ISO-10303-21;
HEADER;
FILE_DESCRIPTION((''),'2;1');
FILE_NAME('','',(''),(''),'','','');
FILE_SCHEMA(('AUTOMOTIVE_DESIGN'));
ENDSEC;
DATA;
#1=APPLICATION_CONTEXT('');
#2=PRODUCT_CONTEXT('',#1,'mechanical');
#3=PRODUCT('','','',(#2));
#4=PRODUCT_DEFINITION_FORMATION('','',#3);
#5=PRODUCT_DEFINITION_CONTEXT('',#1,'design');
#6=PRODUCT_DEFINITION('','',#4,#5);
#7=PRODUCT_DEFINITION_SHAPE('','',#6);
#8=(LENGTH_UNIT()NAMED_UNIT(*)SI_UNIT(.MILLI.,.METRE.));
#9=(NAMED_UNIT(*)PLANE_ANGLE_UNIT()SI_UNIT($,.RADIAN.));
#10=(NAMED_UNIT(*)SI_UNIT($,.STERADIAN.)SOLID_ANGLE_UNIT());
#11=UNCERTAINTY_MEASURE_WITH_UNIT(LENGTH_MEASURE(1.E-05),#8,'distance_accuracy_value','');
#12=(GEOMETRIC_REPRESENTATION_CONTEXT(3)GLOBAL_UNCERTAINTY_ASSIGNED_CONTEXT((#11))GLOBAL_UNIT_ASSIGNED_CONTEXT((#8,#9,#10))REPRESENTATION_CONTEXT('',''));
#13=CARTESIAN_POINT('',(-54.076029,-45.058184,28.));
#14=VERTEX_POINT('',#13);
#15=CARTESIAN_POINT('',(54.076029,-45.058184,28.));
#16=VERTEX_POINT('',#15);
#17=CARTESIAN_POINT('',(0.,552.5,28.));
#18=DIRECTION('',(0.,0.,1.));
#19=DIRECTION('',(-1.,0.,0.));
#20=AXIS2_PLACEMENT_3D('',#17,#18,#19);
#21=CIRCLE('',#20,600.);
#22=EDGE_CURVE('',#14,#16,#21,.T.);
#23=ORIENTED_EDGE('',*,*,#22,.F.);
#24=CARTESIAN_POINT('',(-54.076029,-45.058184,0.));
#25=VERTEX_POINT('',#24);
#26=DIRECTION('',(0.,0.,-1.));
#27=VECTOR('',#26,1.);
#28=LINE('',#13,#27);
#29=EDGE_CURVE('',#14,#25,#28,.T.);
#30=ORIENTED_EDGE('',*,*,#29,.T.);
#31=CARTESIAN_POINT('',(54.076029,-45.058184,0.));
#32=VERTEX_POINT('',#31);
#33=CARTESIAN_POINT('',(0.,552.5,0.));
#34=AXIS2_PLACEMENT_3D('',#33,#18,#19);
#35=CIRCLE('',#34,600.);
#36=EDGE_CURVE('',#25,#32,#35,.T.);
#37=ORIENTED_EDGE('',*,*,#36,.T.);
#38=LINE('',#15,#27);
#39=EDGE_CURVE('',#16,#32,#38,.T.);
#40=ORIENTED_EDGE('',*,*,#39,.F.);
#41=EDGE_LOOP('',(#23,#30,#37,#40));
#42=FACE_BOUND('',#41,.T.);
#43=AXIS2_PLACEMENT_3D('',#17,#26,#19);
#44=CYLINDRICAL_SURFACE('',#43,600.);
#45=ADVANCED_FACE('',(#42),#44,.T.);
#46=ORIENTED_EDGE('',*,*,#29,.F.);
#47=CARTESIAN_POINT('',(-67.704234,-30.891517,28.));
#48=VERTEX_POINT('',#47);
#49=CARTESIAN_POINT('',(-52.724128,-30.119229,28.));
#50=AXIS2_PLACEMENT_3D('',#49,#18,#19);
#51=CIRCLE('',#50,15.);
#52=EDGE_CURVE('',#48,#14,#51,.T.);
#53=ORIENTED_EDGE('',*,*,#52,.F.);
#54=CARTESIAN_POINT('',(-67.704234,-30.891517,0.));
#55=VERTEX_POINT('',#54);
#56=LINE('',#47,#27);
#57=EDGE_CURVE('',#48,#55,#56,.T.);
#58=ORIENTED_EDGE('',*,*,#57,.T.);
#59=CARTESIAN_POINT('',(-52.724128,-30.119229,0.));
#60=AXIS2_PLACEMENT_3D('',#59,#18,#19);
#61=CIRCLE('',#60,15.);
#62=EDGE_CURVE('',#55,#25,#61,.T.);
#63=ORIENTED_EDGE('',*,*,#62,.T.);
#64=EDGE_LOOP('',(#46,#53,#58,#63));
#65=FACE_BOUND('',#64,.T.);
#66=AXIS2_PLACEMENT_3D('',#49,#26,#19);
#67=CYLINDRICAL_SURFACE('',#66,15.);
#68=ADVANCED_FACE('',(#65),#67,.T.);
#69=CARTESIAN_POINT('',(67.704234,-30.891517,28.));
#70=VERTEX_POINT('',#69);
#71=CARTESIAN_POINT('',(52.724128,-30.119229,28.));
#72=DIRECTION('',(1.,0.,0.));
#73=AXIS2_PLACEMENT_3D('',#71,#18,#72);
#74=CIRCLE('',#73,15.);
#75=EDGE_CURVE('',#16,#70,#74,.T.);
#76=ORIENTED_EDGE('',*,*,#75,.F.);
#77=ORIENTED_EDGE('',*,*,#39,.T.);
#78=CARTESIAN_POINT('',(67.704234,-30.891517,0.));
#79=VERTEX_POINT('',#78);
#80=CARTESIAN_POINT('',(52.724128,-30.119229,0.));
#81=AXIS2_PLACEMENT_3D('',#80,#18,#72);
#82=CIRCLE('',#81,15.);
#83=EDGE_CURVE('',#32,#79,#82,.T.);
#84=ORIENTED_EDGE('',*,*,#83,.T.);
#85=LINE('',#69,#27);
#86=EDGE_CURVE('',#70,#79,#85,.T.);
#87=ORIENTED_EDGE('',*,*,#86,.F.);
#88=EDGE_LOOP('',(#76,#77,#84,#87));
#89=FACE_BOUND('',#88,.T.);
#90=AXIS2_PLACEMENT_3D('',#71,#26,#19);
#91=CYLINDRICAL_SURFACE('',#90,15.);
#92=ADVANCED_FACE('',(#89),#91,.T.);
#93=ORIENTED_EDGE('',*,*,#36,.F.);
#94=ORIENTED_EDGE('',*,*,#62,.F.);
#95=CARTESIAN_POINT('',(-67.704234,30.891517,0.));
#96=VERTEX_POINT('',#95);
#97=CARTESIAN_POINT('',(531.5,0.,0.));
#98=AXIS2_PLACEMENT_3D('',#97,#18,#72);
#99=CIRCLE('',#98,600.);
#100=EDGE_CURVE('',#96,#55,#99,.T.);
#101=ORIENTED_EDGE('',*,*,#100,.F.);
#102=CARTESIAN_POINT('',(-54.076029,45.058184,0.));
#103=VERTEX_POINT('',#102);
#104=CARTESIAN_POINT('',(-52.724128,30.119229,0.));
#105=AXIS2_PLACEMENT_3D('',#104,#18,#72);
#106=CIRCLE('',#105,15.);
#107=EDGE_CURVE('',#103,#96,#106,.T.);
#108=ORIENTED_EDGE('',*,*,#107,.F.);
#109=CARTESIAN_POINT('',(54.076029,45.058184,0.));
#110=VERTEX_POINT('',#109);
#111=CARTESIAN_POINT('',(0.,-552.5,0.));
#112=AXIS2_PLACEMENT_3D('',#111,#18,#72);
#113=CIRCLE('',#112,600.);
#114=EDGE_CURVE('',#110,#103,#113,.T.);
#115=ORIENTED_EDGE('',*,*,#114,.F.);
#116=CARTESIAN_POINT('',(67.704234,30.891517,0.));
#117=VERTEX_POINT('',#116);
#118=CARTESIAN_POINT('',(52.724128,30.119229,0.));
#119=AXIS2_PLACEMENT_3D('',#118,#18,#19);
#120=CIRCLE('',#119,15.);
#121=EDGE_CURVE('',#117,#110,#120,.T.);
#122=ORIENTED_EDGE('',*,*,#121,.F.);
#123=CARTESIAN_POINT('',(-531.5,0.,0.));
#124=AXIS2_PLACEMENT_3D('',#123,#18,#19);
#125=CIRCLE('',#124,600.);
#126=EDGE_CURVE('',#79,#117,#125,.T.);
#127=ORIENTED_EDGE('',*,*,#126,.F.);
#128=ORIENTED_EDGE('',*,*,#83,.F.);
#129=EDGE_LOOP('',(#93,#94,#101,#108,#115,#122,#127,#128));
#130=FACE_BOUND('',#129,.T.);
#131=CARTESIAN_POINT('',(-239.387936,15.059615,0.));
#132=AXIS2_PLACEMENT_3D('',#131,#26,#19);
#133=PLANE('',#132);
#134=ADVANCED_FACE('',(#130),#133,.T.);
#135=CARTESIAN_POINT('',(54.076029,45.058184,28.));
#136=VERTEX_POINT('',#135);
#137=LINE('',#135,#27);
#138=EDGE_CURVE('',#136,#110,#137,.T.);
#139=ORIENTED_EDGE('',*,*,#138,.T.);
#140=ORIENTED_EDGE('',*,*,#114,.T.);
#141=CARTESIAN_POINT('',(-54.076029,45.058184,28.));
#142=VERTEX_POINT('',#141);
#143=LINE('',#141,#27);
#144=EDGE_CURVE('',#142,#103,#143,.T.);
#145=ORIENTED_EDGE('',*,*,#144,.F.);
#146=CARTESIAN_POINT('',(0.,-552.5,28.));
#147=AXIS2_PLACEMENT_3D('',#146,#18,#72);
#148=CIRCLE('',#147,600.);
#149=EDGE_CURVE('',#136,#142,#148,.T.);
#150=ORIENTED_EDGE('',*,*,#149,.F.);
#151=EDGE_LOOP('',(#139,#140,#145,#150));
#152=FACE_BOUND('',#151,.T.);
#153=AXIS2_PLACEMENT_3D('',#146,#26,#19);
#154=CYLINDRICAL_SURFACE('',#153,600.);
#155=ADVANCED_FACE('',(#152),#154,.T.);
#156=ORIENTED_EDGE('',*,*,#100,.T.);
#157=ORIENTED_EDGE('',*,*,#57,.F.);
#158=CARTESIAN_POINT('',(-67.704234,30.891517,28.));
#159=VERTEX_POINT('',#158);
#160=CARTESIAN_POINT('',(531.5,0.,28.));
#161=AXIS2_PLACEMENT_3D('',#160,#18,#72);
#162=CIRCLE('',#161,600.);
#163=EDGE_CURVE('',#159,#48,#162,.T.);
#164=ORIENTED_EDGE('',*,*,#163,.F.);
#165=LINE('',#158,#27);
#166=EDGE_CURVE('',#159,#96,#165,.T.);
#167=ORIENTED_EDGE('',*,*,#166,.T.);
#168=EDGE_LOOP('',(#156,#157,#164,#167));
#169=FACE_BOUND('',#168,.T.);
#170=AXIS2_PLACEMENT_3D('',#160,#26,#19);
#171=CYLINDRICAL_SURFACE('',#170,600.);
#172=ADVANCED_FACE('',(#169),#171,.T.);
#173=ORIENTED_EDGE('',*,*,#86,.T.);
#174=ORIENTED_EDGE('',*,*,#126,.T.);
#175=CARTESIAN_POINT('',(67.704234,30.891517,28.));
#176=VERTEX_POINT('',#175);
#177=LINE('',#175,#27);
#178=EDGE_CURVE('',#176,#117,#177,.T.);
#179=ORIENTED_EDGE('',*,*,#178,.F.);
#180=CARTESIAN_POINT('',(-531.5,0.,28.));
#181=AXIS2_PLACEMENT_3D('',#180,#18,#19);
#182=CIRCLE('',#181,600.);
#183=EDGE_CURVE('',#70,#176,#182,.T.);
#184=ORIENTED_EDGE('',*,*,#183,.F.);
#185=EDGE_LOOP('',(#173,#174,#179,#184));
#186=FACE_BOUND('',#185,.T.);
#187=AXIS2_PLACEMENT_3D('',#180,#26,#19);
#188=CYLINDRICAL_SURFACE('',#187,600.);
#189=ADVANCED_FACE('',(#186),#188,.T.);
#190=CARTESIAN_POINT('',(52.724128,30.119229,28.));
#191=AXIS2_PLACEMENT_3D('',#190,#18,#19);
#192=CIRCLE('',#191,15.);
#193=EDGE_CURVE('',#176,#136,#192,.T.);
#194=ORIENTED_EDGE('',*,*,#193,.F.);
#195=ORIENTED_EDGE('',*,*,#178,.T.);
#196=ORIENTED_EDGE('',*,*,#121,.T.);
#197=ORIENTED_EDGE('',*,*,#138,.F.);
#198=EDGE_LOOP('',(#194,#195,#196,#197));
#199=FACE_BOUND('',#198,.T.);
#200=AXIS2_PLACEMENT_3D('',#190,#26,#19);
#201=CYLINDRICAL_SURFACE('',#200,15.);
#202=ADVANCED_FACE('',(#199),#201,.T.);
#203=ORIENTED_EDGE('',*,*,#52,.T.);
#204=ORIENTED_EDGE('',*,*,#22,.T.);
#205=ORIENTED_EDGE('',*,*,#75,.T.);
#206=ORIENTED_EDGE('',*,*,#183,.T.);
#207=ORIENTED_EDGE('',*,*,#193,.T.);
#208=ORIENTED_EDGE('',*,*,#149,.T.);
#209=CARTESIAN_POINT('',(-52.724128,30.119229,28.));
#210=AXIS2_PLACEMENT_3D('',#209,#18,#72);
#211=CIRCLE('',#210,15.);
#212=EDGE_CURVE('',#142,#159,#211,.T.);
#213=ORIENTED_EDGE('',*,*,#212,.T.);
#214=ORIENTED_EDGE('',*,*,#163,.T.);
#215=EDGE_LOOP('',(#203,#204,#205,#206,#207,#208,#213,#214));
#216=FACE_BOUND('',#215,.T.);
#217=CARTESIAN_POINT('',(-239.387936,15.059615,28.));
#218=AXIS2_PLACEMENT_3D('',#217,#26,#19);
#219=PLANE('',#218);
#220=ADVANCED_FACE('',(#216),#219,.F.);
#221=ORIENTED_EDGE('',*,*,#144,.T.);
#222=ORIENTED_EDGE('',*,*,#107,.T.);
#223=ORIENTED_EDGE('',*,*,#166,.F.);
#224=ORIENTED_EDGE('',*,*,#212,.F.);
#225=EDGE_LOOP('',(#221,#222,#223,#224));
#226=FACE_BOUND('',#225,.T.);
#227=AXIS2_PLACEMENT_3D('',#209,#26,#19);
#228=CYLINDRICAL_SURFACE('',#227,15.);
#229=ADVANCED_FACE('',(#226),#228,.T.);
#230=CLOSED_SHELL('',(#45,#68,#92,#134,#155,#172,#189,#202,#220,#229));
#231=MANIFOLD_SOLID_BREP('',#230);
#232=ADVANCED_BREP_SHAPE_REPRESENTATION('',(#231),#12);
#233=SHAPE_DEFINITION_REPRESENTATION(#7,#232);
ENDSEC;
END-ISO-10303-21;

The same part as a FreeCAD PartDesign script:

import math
import FreeCAD as App
import Part
import Sketcher
from FreeCAD import Vector

doc = App.newDocument("Part")
params = doc.addObject("Spreadsheet::Sheet", "Params")
for row, (alias, value) in enumerate([
    ("sketch1_radius", "600 mm"),
    ("sketch1_radius2", "15 mm"),
    ("pad1_length", "28 mm"),
], start=1):
    params.set(f"A{row}", alias)
    params.set(f"B{row}", "=" + value)
    params.setAlias(f"B{row}", alias)

body = doc.addObject("PartDesign::Body", "Body")

sketch1 = doc.addObject("Sketcher::SketchObject", "Sketch")
body.addObject(sketch1)
sketch1.AttachmentSupport = (doc.XY_Plane, [""])
sketch1.MapMode = "FlatFace"
sketch1.addGeometry([
    Part.ArcOfCircle(Part.Circle(Vector(0, -553, 0), Vector(0, 0, 1), 600), math.radians(84.83), math.radians(95.17)),
    Part.ArcOfCircle(Part.Circle(Vector(-53, 30, 0), Vector(0, 0, 1), 15), math.radians(95), math.radians(177)),
    Part.ArcOfCircle(Part.Circle(Vector(531, 0, 0), Vector(0, 0, 1), 600), math.radians(177.05), math.radians(182.95)),
    Part.ArcOfCircle(Part.Circle(Vector(-53, -30, 0), Vector(0, 0, 1), 15), math.radians(-177), math.radians(-95)),
    Part.ArcOfCircle(Part.Circle(Vector(0, 553, 0), Vector(0, 0, 1), 600), math.radians(-95.17), math.radians(-84.83)),
    Part.ArcOfCircle(Part.Circle(Vector(53, -30, 0), Vector(0, 0, 1), 15), math.radians(-85), math.radians(-3)),
    Part.ArcOfCircle(Part.Circle(Vector(-531, 0, 0), Vector(0, 0, 1), 600), math.radians(-2.95), math.radians(2.95)),
    Part.ArcOfCircle(Part.Circle(Vector(53, 30, 0), Vector(0, 0, 1), 15), math.radians(3), math.radians(85)),
], False)
sketch1.addConstraint([
    Sketcher.Constraint("Tangent", 0, 2, 1, 1),
    Sketcher.Constraint("Tangent", 1, 2, 2, 1),
    Sketcher.Constraint("Tangent", 2, 2, 3, 1),
    Sketcher.Constraint("Tangent", 3, 2, 4, 1),
    Sketcher.Constraint("Tangent", 4, 2, 5, 1),
    Sketcher.Constraint("Tangent", 5, 2, 6, 1),
    Sketcher.Constraint("Tangent", 6, 2, 7, 1),
    Sketcher.Constraint("Tangent", 7, 2, 0, 1),
    Sketcher.Constraint("Equal", 0, 2),
    Sketcher.Constraint("Equal", 1, 3),
    Sketcher.Constraint("Equal", 2, 4),
    Sketcher.Constraint("Equal", 3, 5),
    Sketcher.Constraint("Equal", 4, 6),
    Sketcher.Constraint("Equal", 5, 7),
    Sketcher.Constraint("Symmetric", 0, 3, 4, 3, -1, 1),
    Sketcher.Constraint("Symmetric", 2, 3, 6, 3, -1, 1),
    Sketcher.Constraint("Symmetric", 3, 3, 5, 3, -2),
    Sketcher.Constraint("Radius", 0, 600.0),
    Sketcher.Constraint("Radius", 1, 15.0),
    Sketcher.Constraint("DistanceY", 0, 3, 4, 3, 1105.0),
    Sketcher.Constraint("DistanceX", -1, 1, 2, 3, 531.5),
])
sketch1.setExpression("Constraints[17]", "Params.sketch1_radius")
sketch1.setExpression("Constraints[18]", "Params.sketch1_radius2")
pad1 = doc.addObject("PartDesign::Pad", "Pad")
body.addObject(pad1)
pad1.Profile = sketch1
pad1.setExpression("Length", "Params.pad1_length")

doc.recompute()
